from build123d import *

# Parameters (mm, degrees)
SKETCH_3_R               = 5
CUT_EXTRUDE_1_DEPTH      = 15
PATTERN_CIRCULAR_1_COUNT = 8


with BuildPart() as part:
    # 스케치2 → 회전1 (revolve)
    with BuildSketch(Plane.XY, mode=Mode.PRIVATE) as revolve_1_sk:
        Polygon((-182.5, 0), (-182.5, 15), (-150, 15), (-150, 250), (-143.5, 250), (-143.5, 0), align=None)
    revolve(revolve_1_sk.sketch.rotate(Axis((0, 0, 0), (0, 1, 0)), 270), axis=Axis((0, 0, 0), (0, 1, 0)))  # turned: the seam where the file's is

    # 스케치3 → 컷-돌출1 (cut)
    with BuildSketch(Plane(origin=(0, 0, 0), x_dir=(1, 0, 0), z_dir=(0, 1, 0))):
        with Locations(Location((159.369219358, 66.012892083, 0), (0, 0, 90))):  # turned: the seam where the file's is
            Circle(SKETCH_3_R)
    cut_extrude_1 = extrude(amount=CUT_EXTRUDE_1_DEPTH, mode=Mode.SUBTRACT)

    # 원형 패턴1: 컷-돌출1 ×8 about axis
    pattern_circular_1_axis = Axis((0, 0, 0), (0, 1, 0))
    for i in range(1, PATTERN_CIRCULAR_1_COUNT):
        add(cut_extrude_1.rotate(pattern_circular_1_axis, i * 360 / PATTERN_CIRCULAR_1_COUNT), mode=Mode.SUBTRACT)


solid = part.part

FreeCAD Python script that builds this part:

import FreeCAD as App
import Part
import Sketcher

V = App.Vector

doc = App.newDocument("Part")
params = doc.addObject("Spreadsheet::Sheet", "Params")
for row, (alias, value) in enumerate([
    ("sketch1_width", "39 mm"),
    ("sketch1_height", "15 mm"),
    ("sketch1_height2", "250 mm"),
    ("sketch1_width2", "6.5 mm"),
    ("revolution_angle", "360 deg"),
    ("sketch2_diameter", "10 mm"),
    ("pocket1_length", "15 mm"),
], start=1):
    params.set(f"A{row}", alias)
    params.set(f"B{row}", "=" + value)
    params.setAlias(f"B{row}", alias)

body = doc.addObject("PartDesign::Body", "Body")

# Sketch on XY plane
sketch1 = body.newObject("Sketcher::SketchObject", "Sketch")
sketch1.AttachmentSupport = (doc.getObject("XY_Plane"), [""])
sketch1.MapMode = "FlatFace"
sketch1.addGeometry([
    Part.LineSegment(V(-182, 15, 0), V(-182, 0, 0)),  # 0
    Part.LineSegment(V(-182, 0, 0), V(-144, 0, 0)),  # 1
    Part.LineSegment(V(-144, 0, 0), V(-144, 250, 0)),  # 2
    Part.LineSegment(V(-144, 250, 0), V(-150, 250, 0)),  # 3
    Part.LineSegment(V(-150, 250, 0), V(-150, 15, 0)),  # 4
    Part.LineSegment(V(-150, 15, 0), V(-182, 15, 0)),  # 5
], False)
sketch1.addConstraint([
    Sketcher.Constraint("Coincident", 0, 2, 1, 1),
    Sketcher.Constraint("Coincident", 1, 2, 2, 1),
    Sketcher.Constraint("Coincident", 2, 2, 3, 1),
    Sketcher.Constraint("Coincident", 3, 2, 4, 1),
    Sketcher.Constraint("Coincident", 4, 2, 5, 1),
    Sketcher.Constraint("Coincident", 5, 2, 0, 1),
    Sketcher.Constraint("Vertical", 0),
    Sketcher.Constraint("Horizontal", 1),
    Sketcher.Constraint("Vertical", 2),
    Sketcher.Constraint("Horizontal", 3),
    Sketcher.Constraint("Vertical", 4),
    Sketcher.Constraint("Horizontal", 5),
    Sketcher.Constraint("PointOnObject", 0, 2, -1),
    Sketcher.Constraint("DistanceX", 1, 1, 1, 2, 39.0),
    Sketcher.Constraint("DistanceY", 0, 2, 0, 1, 15.0),
    Sketcher.Constraint("DistanceY", 2, 1, 2, 2, 250.0),
    Sketcher.Constraint("DistanceX", 3, 2, 3, 1, 6.5),
    Sketcher.Constraint("DistanceX", 3, 2, -1, 1, 150.0),
])
sketch1.setExpression("Constraints[13]", "Params.sketch1_width")
sketch1.setExpression("Constraints[14]", "Params.sketch1_height")
sketch1.setExpression("Constraints[15]", "Params.sketch1_height2")
sketch1.setExpression("Constraints[16]", "Params.sketch1_width2")
revolution = body.newObject("PartDesign::Revolution", "Revolution")
revolution.Profile = sketch1
revolution.ReferenceAxis = (sketch1, ["V_Axis"])
revolution.setExpression("Angle", "Params.revolution_angle")

# Sketch on XZ plane
sketch2 = body.newObject("Sketcher::SketchObject", "Sketch001")
sketch2.AttachmentSupport = (doc.getObject("XZ_Plane"), [""])
sketch2.MapMode = "FlatFace"
sketch2.addGeometry(Part.Circle(V(159, -66, 0), V(0, 0, 1), 5), False)
sketch2.addConstraint([
    Sketcher.Constraint("Diameter", 0, 10.0),
    Sketcher.Constraint("DistanceX", -1, 1, 0, 3, 159.369219),
    Sketcher.Constraint("DistanceY", 0, 3, -1, 1, 66.012892),
])
sketch2.setExpression("Constraints[0]", "Params.sketch2_diameter")
pocket1 = body.newObject("PartDesign::Pocket", "Pocket")
pocket1.Profile = sketch2
pocket1.setExpression("Length", "Params.pocket1_length")
doc.recompute()

polarpattern = body.newObject("PartDesign::PolarPattern", "PolarPattern")
polarpattern.Originals = [pocket1]
polarpattern.Axis = (doc.getObject("Y_Axis"), [""])
polarpattern.Angle = 360
polarpattern.Occurrences = 8
body.Tip = polarpattern

doc.recompute()
